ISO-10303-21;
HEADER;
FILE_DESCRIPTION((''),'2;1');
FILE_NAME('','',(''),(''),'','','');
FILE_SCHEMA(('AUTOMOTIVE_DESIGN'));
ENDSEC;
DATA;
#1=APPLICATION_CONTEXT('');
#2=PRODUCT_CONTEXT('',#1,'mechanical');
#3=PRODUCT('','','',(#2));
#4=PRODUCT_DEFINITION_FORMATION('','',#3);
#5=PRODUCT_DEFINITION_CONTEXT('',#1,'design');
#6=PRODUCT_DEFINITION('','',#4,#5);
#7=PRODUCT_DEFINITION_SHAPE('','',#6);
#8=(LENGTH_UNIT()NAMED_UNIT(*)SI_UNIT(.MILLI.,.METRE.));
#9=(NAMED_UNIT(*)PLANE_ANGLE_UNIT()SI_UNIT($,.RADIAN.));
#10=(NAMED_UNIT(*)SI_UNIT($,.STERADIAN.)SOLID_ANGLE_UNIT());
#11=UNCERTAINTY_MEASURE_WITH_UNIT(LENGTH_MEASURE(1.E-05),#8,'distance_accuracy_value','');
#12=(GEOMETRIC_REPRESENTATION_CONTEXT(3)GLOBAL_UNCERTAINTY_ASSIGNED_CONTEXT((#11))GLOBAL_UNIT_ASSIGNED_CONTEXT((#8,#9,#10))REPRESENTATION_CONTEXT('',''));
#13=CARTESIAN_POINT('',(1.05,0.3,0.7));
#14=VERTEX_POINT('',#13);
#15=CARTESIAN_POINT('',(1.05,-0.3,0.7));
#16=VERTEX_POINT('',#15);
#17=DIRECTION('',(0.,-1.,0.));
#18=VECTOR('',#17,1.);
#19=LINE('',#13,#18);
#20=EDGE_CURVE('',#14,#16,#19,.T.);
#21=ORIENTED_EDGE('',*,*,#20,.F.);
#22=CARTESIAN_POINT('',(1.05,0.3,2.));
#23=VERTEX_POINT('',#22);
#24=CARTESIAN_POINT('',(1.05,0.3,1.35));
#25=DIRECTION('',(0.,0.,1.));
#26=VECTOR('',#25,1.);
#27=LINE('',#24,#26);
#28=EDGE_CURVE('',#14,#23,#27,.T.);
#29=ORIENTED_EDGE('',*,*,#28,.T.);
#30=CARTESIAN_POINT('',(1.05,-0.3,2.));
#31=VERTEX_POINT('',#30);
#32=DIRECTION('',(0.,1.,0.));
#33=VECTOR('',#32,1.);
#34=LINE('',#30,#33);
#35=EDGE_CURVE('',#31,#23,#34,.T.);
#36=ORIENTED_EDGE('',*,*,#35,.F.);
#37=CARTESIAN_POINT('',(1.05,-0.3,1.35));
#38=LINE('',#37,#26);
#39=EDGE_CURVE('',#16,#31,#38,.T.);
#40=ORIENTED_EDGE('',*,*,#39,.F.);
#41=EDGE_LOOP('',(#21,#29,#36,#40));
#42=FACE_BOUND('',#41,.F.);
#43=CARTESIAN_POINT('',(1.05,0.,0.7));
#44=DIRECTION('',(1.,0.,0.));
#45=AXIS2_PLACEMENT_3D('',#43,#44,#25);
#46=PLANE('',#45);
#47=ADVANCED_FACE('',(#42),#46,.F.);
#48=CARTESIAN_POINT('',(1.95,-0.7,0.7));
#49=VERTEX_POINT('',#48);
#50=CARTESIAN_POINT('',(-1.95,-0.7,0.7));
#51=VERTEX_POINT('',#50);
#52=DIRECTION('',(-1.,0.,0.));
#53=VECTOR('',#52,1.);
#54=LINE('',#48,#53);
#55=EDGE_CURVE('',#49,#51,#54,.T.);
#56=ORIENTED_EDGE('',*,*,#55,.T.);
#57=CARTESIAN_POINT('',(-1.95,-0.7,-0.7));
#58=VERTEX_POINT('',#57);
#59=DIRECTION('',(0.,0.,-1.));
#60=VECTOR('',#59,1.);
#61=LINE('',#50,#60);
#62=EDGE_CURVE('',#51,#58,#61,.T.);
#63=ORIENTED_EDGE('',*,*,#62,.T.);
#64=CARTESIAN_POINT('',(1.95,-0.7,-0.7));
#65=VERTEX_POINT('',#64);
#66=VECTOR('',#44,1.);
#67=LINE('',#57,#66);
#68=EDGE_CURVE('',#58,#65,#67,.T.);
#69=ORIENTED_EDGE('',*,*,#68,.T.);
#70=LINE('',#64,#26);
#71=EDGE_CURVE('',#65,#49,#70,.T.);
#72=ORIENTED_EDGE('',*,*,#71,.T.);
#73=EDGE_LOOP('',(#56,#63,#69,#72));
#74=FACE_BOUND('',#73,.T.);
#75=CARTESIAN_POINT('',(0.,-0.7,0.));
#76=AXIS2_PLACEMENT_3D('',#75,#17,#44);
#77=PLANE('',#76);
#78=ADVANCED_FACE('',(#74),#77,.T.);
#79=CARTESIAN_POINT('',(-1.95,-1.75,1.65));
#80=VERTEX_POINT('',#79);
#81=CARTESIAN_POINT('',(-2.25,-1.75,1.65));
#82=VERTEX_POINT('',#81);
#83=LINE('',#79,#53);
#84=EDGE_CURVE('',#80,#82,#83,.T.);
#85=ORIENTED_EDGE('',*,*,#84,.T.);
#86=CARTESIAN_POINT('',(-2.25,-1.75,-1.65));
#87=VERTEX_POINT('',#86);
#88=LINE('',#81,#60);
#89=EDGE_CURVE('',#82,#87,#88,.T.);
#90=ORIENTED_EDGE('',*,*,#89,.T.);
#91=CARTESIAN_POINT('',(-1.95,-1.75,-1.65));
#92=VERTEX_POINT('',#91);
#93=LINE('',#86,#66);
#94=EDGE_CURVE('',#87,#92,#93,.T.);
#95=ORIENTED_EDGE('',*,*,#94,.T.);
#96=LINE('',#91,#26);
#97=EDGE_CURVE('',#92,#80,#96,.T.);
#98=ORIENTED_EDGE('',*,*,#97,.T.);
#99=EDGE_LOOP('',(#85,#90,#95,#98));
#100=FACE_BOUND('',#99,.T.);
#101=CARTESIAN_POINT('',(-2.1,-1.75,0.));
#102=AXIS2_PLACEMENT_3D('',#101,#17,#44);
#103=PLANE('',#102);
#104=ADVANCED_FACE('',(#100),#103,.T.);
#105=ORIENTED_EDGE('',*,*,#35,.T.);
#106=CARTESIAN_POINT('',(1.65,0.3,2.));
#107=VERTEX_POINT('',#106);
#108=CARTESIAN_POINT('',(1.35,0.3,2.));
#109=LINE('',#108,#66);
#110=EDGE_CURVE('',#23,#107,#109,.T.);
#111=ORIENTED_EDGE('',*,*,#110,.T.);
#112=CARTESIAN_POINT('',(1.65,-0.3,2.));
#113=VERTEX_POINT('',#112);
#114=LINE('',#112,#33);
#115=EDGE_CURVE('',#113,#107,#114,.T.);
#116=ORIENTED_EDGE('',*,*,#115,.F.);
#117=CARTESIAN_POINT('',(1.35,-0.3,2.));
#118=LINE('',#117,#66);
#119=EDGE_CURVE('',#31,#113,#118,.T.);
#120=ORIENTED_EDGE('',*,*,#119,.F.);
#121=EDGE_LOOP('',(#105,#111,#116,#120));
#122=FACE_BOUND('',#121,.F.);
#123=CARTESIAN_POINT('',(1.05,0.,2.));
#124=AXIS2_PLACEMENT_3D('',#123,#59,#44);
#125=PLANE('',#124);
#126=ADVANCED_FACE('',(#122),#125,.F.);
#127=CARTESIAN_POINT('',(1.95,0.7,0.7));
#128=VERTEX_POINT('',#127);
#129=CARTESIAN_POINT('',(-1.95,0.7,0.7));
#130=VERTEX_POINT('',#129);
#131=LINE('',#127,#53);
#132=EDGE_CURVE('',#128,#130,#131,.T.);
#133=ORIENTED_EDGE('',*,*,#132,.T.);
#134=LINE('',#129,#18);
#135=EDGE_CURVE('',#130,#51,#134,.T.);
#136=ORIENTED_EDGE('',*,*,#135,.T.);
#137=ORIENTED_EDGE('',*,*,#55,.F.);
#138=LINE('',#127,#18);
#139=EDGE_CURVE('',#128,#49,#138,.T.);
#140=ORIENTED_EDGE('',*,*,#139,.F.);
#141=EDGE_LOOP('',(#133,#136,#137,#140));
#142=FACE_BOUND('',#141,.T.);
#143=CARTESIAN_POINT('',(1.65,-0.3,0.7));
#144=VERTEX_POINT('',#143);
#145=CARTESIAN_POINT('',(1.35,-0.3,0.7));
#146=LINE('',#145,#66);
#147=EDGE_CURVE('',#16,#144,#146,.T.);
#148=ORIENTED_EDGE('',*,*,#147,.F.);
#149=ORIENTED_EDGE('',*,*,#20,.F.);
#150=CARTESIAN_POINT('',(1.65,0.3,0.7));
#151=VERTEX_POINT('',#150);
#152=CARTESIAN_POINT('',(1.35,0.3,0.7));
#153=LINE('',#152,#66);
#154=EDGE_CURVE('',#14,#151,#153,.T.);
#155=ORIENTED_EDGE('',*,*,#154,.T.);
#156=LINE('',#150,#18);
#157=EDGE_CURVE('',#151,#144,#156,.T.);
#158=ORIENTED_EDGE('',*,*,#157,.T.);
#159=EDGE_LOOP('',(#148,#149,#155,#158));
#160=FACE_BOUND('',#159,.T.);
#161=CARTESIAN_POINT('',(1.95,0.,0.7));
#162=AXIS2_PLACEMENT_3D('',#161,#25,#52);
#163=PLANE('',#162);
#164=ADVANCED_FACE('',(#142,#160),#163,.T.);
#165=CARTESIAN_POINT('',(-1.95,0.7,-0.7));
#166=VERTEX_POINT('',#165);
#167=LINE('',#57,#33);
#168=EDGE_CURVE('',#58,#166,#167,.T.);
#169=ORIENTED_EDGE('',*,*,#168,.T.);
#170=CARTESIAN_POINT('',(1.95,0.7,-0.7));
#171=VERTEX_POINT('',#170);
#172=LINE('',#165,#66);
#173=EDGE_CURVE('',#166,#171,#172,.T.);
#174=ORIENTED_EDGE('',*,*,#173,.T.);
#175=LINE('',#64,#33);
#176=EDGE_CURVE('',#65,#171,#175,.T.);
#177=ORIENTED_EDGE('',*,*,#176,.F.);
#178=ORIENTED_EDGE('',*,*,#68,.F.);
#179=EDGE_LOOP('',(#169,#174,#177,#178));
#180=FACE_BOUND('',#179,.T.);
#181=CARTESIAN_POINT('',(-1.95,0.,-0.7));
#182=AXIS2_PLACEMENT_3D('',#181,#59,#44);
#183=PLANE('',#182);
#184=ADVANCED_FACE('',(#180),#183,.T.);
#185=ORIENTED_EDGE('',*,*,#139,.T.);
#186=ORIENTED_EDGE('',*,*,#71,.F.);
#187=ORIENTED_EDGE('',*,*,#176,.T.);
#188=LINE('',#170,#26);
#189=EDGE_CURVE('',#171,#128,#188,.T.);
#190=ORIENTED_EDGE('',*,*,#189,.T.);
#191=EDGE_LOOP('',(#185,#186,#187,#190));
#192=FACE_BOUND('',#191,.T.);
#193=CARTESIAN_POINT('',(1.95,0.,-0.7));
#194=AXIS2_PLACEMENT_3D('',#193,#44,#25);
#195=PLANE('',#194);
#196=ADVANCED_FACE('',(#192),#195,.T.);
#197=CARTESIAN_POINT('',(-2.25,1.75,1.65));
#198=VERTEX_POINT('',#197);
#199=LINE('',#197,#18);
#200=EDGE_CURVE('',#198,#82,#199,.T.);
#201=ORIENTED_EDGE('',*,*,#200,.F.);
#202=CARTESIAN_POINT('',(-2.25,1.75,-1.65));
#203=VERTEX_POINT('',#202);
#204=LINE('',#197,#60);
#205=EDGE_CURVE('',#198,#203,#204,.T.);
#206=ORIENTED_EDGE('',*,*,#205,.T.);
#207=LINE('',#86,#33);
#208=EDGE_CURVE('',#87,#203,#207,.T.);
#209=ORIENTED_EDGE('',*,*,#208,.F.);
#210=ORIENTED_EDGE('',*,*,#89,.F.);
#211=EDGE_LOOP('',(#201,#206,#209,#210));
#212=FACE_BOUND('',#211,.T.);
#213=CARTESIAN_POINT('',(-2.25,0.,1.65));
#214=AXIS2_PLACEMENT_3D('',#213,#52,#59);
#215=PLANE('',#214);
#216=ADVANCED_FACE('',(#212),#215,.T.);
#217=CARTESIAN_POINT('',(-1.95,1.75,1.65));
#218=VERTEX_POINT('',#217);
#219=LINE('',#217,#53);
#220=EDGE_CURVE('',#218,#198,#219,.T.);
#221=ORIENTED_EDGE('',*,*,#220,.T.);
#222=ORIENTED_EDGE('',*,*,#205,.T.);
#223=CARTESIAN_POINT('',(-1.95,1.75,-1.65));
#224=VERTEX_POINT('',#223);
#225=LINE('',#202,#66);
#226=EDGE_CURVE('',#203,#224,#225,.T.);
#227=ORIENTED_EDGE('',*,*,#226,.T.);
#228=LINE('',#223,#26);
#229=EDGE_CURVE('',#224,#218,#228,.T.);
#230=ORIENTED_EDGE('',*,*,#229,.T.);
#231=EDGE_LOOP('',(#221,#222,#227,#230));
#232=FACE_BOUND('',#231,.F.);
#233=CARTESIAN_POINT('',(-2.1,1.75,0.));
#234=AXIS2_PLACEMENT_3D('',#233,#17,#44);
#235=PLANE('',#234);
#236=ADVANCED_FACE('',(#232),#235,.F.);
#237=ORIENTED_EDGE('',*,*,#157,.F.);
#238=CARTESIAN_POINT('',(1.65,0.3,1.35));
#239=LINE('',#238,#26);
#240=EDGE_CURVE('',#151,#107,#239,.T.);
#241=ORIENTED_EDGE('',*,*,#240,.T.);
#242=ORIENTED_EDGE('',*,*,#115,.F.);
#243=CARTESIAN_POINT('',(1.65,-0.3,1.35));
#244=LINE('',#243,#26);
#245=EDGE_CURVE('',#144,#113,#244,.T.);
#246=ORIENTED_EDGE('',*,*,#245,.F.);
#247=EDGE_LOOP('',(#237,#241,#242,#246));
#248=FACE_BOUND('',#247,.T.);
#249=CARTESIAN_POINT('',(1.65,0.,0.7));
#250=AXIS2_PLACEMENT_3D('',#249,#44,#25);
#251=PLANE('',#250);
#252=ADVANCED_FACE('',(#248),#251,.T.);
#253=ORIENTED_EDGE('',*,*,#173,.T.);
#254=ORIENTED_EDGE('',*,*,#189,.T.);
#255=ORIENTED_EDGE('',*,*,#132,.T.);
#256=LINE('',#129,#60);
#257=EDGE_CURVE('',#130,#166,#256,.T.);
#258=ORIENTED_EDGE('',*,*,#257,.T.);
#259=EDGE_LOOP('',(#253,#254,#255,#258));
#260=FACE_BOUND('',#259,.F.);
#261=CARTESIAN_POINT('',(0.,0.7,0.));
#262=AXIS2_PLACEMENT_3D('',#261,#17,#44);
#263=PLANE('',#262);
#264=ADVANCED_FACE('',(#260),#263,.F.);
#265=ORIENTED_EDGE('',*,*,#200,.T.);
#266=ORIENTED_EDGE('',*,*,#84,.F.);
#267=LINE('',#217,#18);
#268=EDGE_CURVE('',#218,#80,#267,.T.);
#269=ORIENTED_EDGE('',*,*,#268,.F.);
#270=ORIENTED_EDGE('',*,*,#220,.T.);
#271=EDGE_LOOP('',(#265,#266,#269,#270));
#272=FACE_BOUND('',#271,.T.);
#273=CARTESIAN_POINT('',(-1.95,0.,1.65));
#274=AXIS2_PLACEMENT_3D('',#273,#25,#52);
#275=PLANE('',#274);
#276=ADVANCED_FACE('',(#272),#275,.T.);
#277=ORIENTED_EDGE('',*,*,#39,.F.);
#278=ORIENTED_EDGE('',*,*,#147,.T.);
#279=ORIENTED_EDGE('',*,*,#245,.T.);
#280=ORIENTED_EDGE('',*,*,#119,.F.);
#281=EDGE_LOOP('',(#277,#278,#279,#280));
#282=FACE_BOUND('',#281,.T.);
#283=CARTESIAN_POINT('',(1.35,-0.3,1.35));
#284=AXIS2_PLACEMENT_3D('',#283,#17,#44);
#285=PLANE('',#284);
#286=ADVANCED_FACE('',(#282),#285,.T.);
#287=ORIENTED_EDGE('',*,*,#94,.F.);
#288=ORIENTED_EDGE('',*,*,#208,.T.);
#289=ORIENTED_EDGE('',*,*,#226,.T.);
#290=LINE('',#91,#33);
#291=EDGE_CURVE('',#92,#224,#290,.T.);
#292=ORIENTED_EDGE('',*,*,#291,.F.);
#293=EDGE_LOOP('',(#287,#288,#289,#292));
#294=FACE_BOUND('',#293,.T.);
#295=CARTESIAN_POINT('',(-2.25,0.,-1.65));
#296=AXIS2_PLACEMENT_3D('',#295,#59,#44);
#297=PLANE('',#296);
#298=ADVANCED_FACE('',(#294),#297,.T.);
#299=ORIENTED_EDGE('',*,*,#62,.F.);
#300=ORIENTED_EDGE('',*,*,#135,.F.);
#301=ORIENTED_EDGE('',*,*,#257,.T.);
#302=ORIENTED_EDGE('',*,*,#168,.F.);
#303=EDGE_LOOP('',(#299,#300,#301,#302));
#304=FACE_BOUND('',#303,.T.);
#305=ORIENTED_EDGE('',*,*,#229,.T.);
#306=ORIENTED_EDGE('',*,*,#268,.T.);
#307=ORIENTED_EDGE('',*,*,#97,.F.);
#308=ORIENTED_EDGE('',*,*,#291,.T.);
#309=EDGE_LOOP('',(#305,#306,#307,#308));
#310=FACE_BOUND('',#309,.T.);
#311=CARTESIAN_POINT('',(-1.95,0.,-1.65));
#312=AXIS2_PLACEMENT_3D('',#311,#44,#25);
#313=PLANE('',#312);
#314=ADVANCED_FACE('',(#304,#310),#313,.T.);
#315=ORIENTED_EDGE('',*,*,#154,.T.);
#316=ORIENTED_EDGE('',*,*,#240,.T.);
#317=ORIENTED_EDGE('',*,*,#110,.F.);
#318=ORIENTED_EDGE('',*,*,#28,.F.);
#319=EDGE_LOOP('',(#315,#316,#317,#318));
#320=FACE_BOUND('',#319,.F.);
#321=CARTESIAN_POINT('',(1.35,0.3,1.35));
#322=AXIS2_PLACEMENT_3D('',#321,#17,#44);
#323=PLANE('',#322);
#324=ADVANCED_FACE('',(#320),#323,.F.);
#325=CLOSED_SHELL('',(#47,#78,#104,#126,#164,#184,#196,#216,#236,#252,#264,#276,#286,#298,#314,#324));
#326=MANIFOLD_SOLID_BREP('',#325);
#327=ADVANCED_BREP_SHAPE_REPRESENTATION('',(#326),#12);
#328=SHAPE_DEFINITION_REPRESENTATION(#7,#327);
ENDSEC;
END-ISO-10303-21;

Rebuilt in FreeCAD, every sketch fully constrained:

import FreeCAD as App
import Part
import Sketcher

V = App.Vector


def add_polygon(sketch, points):
    """Adds a closed chain of lines whose ends are joined by coincident constraints."""
    first, n = sketch.GeometryCount, len(points)
    for a, b in zip(points, points[1:] + points[:1]):
        sketch.addGeometry(Part.LineSegment(App.Vector(*a, 0), App.Vector(*b, 0)), False)
    for i in range(n):
        sketch.addConstraint(Sketcher.Constraint("Coincident", first + i, 2, first + (i + 1) % n, 1))

doc = App.newDocument("Part")
body = doc.addObject("PartDesign::Body", "Body")

# Sketch on XZ plane
sketch1 = body.newObject("Sketcher::SketchObject", "Sketch")
sketch1.AttachmentSupport = (doc.getObject("XZ_Plane"), [""])
sketch1.MapMode = "FlatFace"
add_polygon(sketch1, [(-1.95, -1.65), (-1.95, 1.65), (-2.25, 1.65), (-2.25, -1.65)])  # lines 0-3
sketch1.addConstraint([
    Sketcher.Constraint("Vertical", 0),
    Sketcher.Constraint("Horizontal", 1),
    Sketcher.Constraint("Vertical", 2),
    Sketcher.Constraint("Horizontal", 3),
    Sketcher.Constraint("DistanceX", 1, 2, 1, 1, 0.3),
    Sketcher.Constraint("DistanceY", 0, 1, 0, 2, 3.3),
    Sketcher.Constraint("DistanceX", 0, 2, -1, 1, 1.95),
    Sketcher.Constraint("DistanceY", -1, 1, 0, 2, 1.65),
])
pad1 = body.newObject("PartDesign::Pad", "Pad")
pad1.Profile = sketch1
pad1.Length = 3.5
pad1.Midplane = True

# Sketch on XZ plane
sketch2 = body.newObject("Sketcher::SketchObject", "Sketch001")
sketch2.AttachmentSupport = (doc.getObject("XZ_Plane"), [""])
sketch2.MapMode = "FlatFace"
add_polygon(sketch2, [(1.9, -0.7), (1.9, 0.7), (-1.9, 0.7), (-1.9, -0.7)])  # lines 0-3
sketch2.addConstraint([
    Sketcher.Constraint("Vertical", 0),
    Sketcher.Constraint("Horizontal", 1),
    Sketcher.Constraint("Vertical", 2),
    Sketcher.Constraint("Horizontal", 3),
    Sketcher.Constraint("Symmetric", 0, 2, 2, 2, -1, 1),
    Sketcher.Constraint("DistanceX", 1, 2, 1, 1, 3.9),
    Sketcher.Constraint("DistanceY", 0, 1, 0, 2, 1.4),
])
pad2 = body.newObject("PartDesign::Pad", "Pad001")
pad2.Profile = sketch2
pad2.Length = 1.4
pad2.Midplane = True

# Sketch on XZ plane
sketch3 = body.newObject("Sketcher::SketchObject", "Sketch002")
sketch3.AttachmentSupport = (doc.getObject("XZ_Plane"), [""])
sketch3.MapMode = "FlatFace"
add_polygon(sketch3, [(1.1, 2), (1.1, 0.7), (1.6, 0.7), (1.6, 2)])  # lines 0-3
sketch3.addConstraint([
    Sketcher.Constraint("Vertical", 0),
    Sketcher.Constraint("Horizontal", 1),
    Sketcher.Constraint("Vertical", 2),
    Sketcher.Constraint("Horizontal", 3),
    Sketcher.Constraint("DistanceX", 1, 1, 1, 2, 0.6),
    Sketcher.Constraint("DistanceY", 0, 2, 0, 1, 1.3),
    Sketcher.Constraint("DistanceY", -1, 1, 2, 2, 2.0),
    Sketcher.Constraint("DistanceX", -1, 1, 0, 2, 1.05),
])
pad3 = body.newObject("PartDesign::Pad", "Pad002")
pad3.Profile = sketch3
pad3.Length = 0.6
pad3.Midplane = True

doc.recompute()
